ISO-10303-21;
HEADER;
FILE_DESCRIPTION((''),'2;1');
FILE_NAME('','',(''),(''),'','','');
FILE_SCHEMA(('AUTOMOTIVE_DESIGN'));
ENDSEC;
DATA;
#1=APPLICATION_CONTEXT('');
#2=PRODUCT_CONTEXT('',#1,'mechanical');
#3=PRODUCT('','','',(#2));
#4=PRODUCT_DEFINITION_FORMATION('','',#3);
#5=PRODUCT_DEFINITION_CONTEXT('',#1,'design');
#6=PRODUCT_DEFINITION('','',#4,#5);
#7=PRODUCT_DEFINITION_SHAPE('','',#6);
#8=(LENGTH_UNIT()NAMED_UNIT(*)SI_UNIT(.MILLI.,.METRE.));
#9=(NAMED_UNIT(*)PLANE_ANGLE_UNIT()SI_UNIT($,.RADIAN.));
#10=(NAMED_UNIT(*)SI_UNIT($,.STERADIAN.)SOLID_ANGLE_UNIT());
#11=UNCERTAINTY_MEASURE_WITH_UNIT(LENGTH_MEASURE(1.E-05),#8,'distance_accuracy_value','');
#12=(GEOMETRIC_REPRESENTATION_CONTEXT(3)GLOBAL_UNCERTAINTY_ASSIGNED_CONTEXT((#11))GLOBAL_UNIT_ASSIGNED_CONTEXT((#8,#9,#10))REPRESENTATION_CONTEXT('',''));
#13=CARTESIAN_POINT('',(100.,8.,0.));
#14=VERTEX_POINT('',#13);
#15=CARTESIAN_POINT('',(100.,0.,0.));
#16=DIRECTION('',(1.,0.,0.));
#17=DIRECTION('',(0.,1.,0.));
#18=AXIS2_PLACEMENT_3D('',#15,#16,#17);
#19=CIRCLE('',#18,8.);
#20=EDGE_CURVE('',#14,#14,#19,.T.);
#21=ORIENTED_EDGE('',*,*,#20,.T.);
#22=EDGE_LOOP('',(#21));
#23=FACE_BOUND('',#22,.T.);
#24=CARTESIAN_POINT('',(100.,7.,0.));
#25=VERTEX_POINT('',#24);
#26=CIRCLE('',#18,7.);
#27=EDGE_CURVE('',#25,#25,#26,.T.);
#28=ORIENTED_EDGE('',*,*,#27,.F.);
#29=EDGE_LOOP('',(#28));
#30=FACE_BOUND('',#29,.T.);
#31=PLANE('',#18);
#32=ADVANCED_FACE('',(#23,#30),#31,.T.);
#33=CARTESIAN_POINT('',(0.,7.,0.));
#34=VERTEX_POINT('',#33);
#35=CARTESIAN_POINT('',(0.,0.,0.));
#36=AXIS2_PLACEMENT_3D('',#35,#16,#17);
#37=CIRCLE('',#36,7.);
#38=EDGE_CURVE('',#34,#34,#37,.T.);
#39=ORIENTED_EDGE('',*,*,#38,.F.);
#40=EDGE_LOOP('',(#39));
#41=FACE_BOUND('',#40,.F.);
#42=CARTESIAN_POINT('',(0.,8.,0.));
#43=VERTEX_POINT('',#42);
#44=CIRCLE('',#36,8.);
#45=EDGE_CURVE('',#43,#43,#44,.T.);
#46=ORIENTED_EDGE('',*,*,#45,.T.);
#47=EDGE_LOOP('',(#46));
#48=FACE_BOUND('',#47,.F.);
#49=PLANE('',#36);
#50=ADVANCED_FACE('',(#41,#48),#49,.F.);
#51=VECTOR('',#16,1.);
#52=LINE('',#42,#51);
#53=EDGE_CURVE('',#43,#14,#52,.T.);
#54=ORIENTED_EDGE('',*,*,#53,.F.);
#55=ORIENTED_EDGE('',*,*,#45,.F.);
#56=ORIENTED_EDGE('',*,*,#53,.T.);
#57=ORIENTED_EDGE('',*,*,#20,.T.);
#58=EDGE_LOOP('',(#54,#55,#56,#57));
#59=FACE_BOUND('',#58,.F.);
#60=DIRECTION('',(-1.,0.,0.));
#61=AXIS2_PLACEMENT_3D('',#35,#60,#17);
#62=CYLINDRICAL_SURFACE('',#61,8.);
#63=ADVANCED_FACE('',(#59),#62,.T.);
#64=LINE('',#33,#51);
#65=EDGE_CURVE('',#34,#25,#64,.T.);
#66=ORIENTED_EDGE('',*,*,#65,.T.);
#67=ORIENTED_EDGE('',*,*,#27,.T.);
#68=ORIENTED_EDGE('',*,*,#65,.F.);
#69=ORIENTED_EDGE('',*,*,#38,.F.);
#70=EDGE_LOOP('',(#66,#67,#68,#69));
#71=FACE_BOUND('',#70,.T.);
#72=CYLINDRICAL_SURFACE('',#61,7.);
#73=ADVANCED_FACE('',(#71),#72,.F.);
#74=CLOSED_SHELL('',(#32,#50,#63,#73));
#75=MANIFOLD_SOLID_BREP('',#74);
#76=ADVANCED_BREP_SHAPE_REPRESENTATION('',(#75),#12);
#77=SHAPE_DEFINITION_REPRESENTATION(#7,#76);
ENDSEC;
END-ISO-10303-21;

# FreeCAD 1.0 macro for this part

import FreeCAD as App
import Part
import Sketcher

V = App.Vector

doc = App.newDocument("Part")
body = doc.addObject("PartDesign::Body", "Body")

# Sketch on YZ plane
sketch1 = doc.addObject("Sketcher::SketchObject", "Sketch")
body.addObject(sketch1)
sketch1.AttachmentSupport = (doc.YZ_Plane, [""])
sketch1.MapMode = "FlatFace"
sketch1.addGeometry([
    Part.Circle(V(0, 0, 0), V(0, 0, 1), 8),
    Part.Circle(V(0, 0, 0), V(0, 0, 1), 7),
], False)
sketch1.addConstraint([
    Sketcher.Constraint("Coincident", 0, 3, -1, 1),
    Sketcher.Constraint("Coincident", 1, 3, -1, 1),
    Sketcher.Constraint("Diameter", 0, 16.0),
    Sketcher.Constraint("Diameter", 1, 14.0),
])
pad1 = doc.addObject("PartDesign::Pad", "Pad")
body.addObject(pad1)
pad1.Profile = sketch1
pad1.Length = 100

doc.recompute()
